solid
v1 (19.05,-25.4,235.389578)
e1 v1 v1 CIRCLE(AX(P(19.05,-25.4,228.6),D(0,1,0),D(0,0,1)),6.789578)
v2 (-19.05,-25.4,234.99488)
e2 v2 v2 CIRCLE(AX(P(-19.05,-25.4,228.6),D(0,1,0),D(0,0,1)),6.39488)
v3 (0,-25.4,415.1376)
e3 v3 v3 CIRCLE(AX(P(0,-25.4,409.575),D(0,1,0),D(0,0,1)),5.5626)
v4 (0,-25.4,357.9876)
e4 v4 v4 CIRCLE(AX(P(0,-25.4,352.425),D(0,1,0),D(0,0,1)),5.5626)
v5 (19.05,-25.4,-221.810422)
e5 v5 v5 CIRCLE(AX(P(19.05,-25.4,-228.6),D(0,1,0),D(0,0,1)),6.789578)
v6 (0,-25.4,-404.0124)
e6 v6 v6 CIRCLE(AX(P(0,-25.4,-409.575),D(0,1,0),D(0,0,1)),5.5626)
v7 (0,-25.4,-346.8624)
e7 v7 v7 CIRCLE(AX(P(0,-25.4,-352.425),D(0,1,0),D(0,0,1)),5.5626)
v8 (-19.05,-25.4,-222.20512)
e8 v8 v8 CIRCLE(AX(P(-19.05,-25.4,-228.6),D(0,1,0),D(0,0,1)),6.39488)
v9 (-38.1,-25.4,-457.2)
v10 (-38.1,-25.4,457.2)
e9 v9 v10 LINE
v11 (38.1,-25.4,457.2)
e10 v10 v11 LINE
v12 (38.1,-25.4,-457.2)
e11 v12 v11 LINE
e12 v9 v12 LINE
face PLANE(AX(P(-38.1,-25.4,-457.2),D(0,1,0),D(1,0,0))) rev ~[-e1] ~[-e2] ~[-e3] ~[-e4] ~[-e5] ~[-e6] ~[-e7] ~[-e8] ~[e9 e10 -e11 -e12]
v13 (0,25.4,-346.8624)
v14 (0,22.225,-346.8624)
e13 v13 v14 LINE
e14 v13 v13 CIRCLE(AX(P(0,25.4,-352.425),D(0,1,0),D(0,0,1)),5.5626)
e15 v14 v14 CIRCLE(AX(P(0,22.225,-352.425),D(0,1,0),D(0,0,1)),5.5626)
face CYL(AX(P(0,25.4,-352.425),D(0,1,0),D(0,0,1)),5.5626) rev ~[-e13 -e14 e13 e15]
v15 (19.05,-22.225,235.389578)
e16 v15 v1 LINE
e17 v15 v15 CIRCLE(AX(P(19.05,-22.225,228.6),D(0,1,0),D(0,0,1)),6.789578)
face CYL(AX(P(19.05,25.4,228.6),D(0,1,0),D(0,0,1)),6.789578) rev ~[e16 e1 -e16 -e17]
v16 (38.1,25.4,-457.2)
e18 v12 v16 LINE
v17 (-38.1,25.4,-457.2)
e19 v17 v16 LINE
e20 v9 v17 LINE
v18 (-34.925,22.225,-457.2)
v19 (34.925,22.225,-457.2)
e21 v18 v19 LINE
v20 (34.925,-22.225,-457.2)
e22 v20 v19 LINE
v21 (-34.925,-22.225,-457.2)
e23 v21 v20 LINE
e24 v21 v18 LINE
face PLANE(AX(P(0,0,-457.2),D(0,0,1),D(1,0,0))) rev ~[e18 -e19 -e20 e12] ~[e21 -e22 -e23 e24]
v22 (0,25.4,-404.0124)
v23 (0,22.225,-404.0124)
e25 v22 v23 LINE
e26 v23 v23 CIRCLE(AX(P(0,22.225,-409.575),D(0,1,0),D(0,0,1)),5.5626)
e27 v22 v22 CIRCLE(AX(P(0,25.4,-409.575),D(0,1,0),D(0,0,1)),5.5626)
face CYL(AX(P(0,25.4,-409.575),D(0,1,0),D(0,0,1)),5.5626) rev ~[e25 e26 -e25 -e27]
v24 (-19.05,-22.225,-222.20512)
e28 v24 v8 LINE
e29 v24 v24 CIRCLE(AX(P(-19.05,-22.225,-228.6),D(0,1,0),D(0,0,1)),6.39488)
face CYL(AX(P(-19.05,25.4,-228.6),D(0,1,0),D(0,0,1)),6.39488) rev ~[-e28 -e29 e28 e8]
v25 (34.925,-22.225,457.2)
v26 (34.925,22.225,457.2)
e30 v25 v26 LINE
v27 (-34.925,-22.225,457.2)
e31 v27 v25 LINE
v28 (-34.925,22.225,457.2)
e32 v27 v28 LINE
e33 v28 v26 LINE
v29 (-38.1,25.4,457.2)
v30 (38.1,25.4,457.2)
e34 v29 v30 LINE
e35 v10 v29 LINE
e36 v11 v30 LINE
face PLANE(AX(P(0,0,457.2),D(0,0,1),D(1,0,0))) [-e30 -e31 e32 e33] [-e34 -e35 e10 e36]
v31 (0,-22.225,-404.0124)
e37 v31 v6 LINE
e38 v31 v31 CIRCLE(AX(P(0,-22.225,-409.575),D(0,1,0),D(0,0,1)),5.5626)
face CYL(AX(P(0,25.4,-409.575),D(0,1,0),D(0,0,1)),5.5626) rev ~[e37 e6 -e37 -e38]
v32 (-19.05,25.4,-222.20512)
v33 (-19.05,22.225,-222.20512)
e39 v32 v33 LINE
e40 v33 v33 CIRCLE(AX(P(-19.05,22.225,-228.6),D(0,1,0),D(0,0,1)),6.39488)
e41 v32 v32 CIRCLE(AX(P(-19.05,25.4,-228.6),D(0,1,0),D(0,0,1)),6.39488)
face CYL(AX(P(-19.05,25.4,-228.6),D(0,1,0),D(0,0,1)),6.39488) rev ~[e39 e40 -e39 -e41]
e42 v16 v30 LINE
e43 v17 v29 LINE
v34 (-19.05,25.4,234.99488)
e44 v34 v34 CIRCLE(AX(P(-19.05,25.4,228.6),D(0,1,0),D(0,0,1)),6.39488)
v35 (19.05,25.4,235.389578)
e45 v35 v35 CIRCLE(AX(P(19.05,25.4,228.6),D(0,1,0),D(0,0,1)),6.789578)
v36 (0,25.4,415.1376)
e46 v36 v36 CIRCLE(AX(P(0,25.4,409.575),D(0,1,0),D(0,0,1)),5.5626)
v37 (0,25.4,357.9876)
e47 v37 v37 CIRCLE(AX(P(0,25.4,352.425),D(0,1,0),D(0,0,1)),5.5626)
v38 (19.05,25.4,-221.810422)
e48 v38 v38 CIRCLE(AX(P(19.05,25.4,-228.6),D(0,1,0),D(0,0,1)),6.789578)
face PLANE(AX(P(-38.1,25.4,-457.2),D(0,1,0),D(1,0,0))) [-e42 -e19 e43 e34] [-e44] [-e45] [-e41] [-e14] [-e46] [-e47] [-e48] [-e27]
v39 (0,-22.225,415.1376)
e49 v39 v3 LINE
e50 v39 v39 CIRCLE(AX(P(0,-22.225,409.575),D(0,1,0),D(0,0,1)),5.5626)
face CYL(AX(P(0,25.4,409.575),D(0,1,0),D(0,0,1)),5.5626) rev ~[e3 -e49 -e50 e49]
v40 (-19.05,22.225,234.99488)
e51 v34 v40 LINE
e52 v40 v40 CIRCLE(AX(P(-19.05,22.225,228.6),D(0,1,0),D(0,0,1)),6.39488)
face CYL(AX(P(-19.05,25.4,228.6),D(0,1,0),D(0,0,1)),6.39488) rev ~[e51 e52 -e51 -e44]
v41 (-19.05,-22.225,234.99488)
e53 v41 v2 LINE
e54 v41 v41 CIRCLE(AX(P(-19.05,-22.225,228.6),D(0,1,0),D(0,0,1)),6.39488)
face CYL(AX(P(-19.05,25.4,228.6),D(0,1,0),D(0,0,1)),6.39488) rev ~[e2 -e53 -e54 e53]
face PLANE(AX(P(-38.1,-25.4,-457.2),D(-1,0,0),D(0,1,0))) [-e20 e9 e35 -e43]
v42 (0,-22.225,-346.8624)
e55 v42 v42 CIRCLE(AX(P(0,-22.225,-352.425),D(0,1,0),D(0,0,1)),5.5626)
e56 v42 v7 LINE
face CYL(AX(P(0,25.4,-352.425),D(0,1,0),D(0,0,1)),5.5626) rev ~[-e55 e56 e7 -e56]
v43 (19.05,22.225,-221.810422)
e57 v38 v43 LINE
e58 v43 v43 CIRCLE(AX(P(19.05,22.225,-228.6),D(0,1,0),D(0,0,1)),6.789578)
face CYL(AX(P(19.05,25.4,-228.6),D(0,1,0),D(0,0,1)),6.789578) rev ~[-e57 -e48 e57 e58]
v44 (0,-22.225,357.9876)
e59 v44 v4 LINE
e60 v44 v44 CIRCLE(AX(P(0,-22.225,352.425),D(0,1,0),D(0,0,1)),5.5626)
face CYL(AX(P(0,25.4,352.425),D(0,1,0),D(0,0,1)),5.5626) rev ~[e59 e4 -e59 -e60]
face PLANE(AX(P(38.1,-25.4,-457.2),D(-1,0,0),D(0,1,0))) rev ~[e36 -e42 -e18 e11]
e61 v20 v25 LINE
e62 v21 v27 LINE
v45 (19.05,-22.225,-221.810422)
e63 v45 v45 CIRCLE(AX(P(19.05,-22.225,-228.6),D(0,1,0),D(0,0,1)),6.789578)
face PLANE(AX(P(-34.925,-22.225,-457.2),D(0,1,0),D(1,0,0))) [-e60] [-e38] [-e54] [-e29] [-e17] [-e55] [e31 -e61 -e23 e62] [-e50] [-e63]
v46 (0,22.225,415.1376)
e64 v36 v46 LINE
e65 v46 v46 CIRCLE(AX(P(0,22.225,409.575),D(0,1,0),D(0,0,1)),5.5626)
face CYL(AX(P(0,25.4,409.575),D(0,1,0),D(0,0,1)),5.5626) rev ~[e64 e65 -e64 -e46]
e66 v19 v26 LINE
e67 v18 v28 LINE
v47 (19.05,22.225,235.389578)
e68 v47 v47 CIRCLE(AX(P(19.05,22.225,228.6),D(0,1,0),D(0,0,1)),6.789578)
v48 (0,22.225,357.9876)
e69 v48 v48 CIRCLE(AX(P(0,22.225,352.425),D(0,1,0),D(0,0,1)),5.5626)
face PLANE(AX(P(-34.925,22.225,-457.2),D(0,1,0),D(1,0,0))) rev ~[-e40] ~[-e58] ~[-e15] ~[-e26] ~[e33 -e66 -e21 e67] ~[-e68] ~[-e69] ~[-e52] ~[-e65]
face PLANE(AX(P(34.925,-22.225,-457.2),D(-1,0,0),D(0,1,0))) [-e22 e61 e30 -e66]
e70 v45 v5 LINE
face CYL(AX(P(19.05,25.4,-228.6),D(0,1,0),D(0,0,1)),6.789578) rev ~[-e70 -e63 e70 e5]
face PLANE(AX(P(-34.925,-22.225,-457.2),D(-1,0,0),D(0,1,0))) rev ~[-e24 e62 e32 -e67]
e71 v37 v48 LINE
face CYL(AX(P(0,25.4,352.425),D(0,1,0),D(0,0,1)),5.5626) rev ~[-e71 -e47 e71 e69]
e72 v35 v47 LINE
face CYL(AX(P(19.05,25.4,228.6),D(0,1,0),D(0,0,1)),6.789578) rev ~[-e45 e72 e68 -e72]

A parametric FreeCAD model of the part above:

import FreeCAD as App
import Part
import Sketcher
from FreeCAD import Vector
Q = App.Units.Quantity

doc = App.newDocument("Part")
body = doc.addObject("PartDesign::Body", "Body")

sketch1 = body.newObject("Sketcher::SketchObject", "Sketch")
sketch1.AttachmentSupport = (doc.getObject("XY_Plane"), [""])
sketch1.MapMode = "FlatFace"
sketch1.addGeometry(Part.LineSegment(Vector(-38, 25, 0), Vector(-38, -25, 0)), False)
sketch1.addGeometry(Part.LineSegment(Vector(-38, -25, 0), Vector(38, -25, 0)), False)
sketch1.addGeometry(Part.LineSegment(Vector(38, -25, 0), Vector(38, 25, 0)), False)
sketch1.addGeometry(Part.LineSegment(Vector(38, 25, 0), Vector(-38, 25, 0)), False)
sketch1.addGeometry(Part.LineSegment(Vector(35, -22, 0), Vector(-35, -22, 0)), False)
sketch1.addGeometry(Part.LineSegment(Vector(-35, -22, 0), Vector(-35, 22, 0)), False)
sketch1.addGeometry(Part.LineSegment(Vector(-35, 22, 0), Vector(35, 22, 0)), False)
sketch1.addGeometry(Part.LineSegment(Vector(35, 22, 0), Vector(35, -22, 0)), False)
sketch1.addConstraint(Sketcher.Constraint("Coincident", 0, 2, 1, 1))
sketch1.addConstraint(Sketcher.Constraint("Coincident", 1, 2, 2, 1))
sketch1.addConstraint(Sketcher.Constraint("Coincident", 2, 2, 3, 1))
sketch1.addConstraint(Sketcher.Constraint("Coincident", 3, 2, 0, 1))
sketch1.addConstraint(Sketcher.Constraint("Coincident", 4, 2, 5, 1))
sketch1.addConstraint(Sketcher.Constraint("Coincident", 5, 2, 6, 1))
sketch1.addConstraint(Sketcher.Constraint("Coincident", 6, 2, 7, 1))
sketch1.addConstraint(Sketcher.Constraint("Coincident", 7, 2, 4, 1))
sketch1.addConstraint(Sketcher.Constraint("Vertical", 0))
sketch1.addConstraint(Sketcher.Constraint("Horizontal", 1))
sketch1.addConstraint(Sketcher.Constraint("Vertical", 2))
sketch1.addConstraint(Sketcher.Constraint("Horizontal", 3))
sketch1.addConstraint(Sketcher.Constraint("Horizontal", 4))
sketch1.addConstraint(Sketcher.Constraint("Vertical", 5))
sketch1.addConstraint(Sketcher.Constraint("Horizontal", 6))
sketch1.addConstraint(Sketcher.Constraint("Vertical", 7))
sketch1.addConstraint(Sketcher.Constraint("Symmetric", 0, 2, 2, 2, -1, 1))
sketch1.addConstraint(Sketcher.Constraint("Symmetric", 4, 2, 6, 2, -1, 1))
sketch1.addConstraint(Sketcher.Constraint("DistanceX", 1, 1, 1, 2, Q("3 in")))
sketch1.addConstraint(Sketcher.Constraint("DistanceY", 0, 2, 0, 1, Q("2 in")))
sketch1.addConstraint(Sketcher.Constraint("DistanceX", 4, 2, 4, 1, Q("2.75 in")))
sketch1.addConstraint(Sketcher.Constraint("DistanceY", 5, 1, 5, 2, Q("1.75 in")))
pad1 = body.newObject("PartDesign::Pad", "Pad")
pad1.Profile = sketch1
pad1.Type = "TwoLengths"
pad1.Length = Q("18 in")
pad1.Length2 = Q("18 in")

sketch2 = body.newObject("Sketcher::SketchObject", "Sketch001")
sketch2.AttachmentSupport = (doc.getObject("XZ_Plane"), [""])
sketch2.MapMode = "FlatFace"
sketch2.AttachmentOffset = App.Placement(Vector(0, 0, -1 * 25.4), App.Rotation())
sketch2.addGeometry(Part.Circle(Vector(-19, 229, 0), Vector(0, 0, 1), 6), False)
sketch2.addGeometry(Part.Circle(Vector(19, 229, 0), Vector(0, 0, 1), 7), False)
sketch2.addGeometry(Part.Circle(Vector(19, -229, 0), Vector(0, 0, 1), 7), False)
sketch2.addGeometry(Part.Circle(Vector(-19, -229, 0), Vector(0, 0, 1), 6), False)
sketch2.addGeometry(Part.Circle(Vector(0, 352, 0), Vector(0, 0, 1), 6), False)
sketch2.addGeometry(Part.Circle(Vector(0, 410, 0), Vector(0, 0, 1), 6), False)
sketch2.addGeometry(Part.Circle(Vector(0, -410, 0), Vector(0, 0, 1), 6), False)
sketch2.addGeometry(Part.Circle(Vector(0, -352, 0), Vector(0, 0, 1), 6), False)
sketch2.addConstraint(Sketcher.Constraint("Equal", 1, 2))
sketch2.addConstraint(Sketcher.Constraint("Equal", 0, 3))
sketch2.addConstraint(Sketcher.Constraint("Equal", 4, 5))
sketch2.addConstraint(Sketcher.Constraint("Equal", 5, 6))
sketch2.addConstraint(Sketcher.Constraint("Equal", 6, 7))
sketch2.addConstraint(Sketcher.Constraint("Symmetric", 0, 3, 2, 3, -1, 1))
sketch2.addConstraint(Sketcher.Constraint("Symmetric", 1, 3, 3, 3, -1, 1))
sketch2.addConstraint(Sketcher.Constraint("Symmetric", 5, 3, 6, 3, -1, 1))
sketch2.addConstraint(Sketcher.Constraint("Symmetric", 4, 3, 7, 3, -1, 1))
sketch2.addConstraint(Sketcher.Constraint("Symmetric", 0, 3, 1, 3, -2))
sketch2.addConstraint(Sketcher.Constraint("PointOnObject", 4, 3, -2))
sketch2.addConstraint(Sketcher.Constraint("PointOnObject", 5, 3, -2))
sketch2.addConstraint(Sketcher.Constraint("Diameter", 4, Q("0.438 in")))
sketch2.addConstraint(Sketcher.Constraint("DistanceY", -1, 1, 0, 3, Q("9 in")))
sketch2.addConstraint(Sketcher.Constraint("DistanceY", 6, 3, 4, 3, Q("30 in")))
sketch2.addConstraint(Sketcher.Constraint("DistanceX", 0, 3, 1, 3, Q("1.5 in")))
sketch2.addConstraint(Sketcher.Constraint("DistanceY", 4, 3, 5, 3, Q("2.25 in")))
sketch2.addConstraint(Sketcher.Constraint("Diameter", 0, 12.789761))
sketch2.addConstraint(Sketcher.Constraint("Diameter", 1, 13.579155))
pocket1 = body.newObject("PartDesign::Pocket", "Pocket")
pocket1.Profile = sketch2
pocket1.Type = "ThroughAll"
pocket1.Reversed = True

doc.recompute()
